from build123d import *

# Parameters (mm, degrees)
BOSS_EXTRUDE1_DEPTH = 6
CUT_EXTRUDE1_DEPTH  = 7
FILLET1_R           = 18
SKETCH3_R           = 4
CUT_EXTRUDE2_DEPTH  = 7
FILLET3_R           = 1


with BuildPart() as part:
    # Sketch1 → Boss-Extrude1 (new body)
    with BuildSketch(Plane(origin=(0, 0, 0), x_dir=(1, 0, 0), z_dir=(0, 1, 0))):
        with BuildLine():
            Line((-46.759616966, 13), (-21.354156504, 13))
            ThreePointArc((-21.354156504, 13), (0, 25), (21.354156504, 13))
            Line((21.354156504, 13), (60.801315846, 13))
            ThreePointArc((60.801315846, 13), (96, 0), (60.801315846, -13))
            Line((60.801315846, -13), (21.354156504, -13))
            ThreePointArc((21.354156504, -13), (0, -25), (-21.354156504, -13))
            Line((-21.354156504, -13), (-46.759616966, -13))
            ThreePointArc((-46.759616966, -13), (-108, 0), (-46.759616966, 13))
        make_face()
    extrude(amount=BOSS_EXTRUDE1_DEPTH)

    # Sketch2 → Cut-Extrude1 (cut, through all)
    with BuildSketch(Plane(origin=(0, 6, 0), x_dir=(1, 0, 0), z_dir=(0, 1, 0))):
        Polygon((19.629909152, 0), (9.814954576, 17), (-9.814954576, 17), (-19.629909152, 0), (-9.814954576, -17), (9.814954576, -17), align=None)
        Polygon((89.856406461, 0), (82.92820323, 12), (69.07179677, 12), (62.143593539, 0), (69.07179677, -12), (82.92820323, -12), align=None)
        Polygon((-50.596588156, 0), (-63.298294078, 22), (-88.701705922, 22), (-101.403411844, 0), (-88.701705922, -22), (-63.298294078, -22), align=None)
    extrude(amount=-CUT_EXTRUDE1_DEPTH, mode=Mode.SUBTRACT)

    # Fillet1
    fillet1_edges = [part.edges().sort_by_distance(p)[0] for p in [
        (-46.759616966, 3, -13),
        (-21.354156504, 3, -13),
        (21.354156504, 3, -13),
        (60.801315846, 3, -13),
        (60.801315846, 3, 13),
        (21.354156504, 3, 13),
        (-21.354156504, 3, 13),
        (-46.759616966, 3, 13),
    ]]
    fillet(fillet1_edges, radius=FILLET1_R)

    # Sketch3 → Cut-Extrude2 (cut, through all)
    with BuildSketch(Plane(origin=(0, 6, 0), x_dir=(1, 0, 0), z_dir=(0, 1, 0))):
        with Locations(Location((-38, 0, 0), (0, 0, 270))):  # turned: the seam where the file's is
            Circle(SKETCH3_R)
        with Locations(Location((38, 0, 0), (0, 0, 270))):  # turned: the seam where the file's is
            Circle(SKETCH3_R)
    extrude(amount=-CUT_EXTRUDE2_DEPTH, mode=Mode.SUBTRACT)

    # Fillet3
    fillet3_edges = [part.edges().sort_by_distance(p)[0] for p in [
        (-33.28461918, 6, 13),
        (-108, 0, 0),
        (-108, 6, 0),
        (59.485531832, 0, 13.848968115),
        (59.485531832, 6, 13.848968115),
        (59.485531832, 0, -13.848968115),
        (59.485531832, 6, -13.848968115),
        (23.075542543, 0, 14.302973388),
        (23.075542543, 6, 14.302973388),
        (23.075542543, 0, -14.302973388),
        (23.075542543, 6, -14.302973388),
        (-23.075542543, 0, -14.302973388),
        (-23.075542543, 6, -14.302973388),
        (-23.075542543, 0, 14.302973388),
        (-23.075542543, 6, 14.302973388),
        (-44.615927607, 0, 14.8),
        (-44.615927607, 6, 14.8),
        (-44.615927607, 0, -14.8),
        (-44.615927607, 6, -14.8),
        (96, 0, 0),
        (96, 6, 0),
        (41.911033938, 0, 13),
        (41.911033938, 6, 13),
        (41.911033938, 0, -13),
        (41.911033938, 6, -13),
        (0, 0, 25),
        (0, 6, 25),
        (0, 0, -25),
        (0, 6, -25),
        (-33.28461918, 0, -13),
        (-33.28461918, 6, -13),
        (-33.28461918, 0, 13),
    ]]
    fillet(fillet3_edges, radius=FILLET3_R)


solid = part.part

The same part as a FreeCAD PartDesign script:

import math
import FreeCAD as App
import Part
import Sketcher
Q = App.Units.Quantity


def edges_at(feature, points):
    """Names of the edges that pass closest to the given points."""
    edges = feature.Shape.Edges
    near = lambda p: min(range(len(edges)), key=lambda i: edges[i].distToShape(Part.Vertex(*p))[0])
    return sorted({f"Edge{near(p) + 1}" for p in points})


def add_polygon(sketch, points):
    """Adds a closed chain of lines whose ends are joined by coincident constraints."""
    first, n = sketch.GeometryCount, len(points)
    for a, b in zip(points, points[1:] + points[:1]):
        sketch.addGeometry(Part.LineSegment(App.Vector(*a, 0), App.Vector(*b, 0)), False)
    for i in range(n):
        sketch.addConstraint(Sketcher.Constraint("Coincident", first + i, 2, first + (i + 1) % n, 1))

doc = App.newDocument("Part")
params = doc.addObject("Spreadsheet::Sheet", "Params")
for row, (alias, value) in enumerate([
    ("sketch1_radius", "32 mm"),
    ("sketch1_radius2", "25 mm"),
    ("sketch1_radius3", "20 mm"),
    ("pad1_length", "6 mm"),
    ("fillet_radius", "18 mm"),
    ("sketch3_diameter", "8 mm"),
    ("fillet2_radius", "1 mm"),
], start=1):
    params.set(f"A{row}", alias)
    params.set(f"B{row}", "=" + value)
    params.setAlias(f"B{row}", alias)

body = doc.addObject("PartDesign::Body", "Body")

# Sketch on XZ plane
sketch1 = body.newObject("Sketcher::SketchObject", "Sketch")
sketch1.AttachmentSupport = (doc.getObject("XZ_Plane"), [""])
sketch1.MapMode = "FlatFace"
sketch1.addGeometry([
    Part.LineSegment(App.Vector(-21, -13, 0), App.Vector(-47, -13, 0)),  # 0
    Part.ArcOfCircle(Part.Circle(App.Vector(-76, 0, 0), App.Vector(0, 0, 1), 32), math.radians(24), math.radians(336)),  # 1
    Part.LineSegment(App.Vector(-47, 13, 0), App.Vector(-21, 13, 0)),  # 2
    Part.ArcOfCircle(Part.Circle(App.Vector(0, 0, 0), App.Vector(0, 0, 1), 25), math.radians(31), math.radians(149)),  # 3
    Part.LineSegment(App.Vector(21, 13, 0), App.Vector(61, 13, 0)),  # 4
    Part.ArcOfCircle(Part.Circle(App.Vector(76, 0, 0), App.Vector(0, 0, 1), 20), math.radians(-139), math.radians(139)),  # 5
    Part.LineSegment(App.Vector(61, -13, 0), App.Vector(21, -13, 0)),  # 6
    Part.ArcOfCircle(Part.Circle(App.Vector(0, 0, 0), App.Vector(0, 0, 1), 25), math.radians(-149), math.radians(-31)),  # 7
], False)
sketch1.addConstraint([
    Sketcher.Constraint("Coincident", 0, 2, 1, 2),
    Sketcher.Constraint("Coincident", 1, 1, 2, 1),
    Sketcher.Constraint("Coincident", 2, 2, 3, 2),
    Sketcher.Constraint("Coincident", 3, 1, 4, 1),
    Sketcher.Constraint("Coincident", 4, 2, 5, 2),
    Sketcher.Constraint("Coincident", 5, 1, 6, 1),
    Sketcher.Constraint("Coincident", 6, 2, 7, 2),
    Sketcher.Constraint("Coincident", 7, 1, 0, 1),
    Sketcher.Constraint("Horizontal", 0),
    Sketcher.Constraint("Horizontal", 2),
    Sketcher.Constraint("Horizontal", 4),
    Sketcher.Constraint("Horizontal", 6),
    Sketcher.Constraint("Coincident", 3, 3, -1, 1),
    Sketcher.Constraint("Coincident", 7, 3, -1, 1),
    Sketcher.Constraint("Equal", 3, 7),
    Sketcher.Constraint("Symmetric", 1, 3, 5, 3, -1, 1),
    Sketcher.Constraint("Symmetric", 0, 2, 1, 1, -1),
    Sketcher.Constraint("Horizontal", 2, 2, 3, 1),
    Sketcher.Constraint("Horizontal", 0, 2, 5, 1),
    Sketcher.Constraint("Radius", 1, Q("32 mm")),
    Sketcher.Constraint("Radius", 3, Q("25 mm")),
    Sketcher.Constraint("Radius", 5, Q("20 mm")),
    Sketcher.Constraint("DistanceX", 1, 3, -1, 1, Q("76 mm")),
    Sketcher.Constraint("DistanceY", 0, 2, -1, 1, Q("13 mm")),
])
sketch1.setExpression("Constraints[19]", "Params.sketch1_radius")
sketch1.setExpression("Constraints[20]", "Params.sketch1_radius2")
sketch1.setExpression("Constraints[21]", "Params.sketch1_radius3")
pad1 = body.newObject("PartDesign::Pad", "Pad")
pad1.Profile = sketch1
pad1.setExpression("Length", "Params.pad1_length")
pad1.Reversed = True

# Sketch on XZ plane
sketch2 = body.newObject("Sketcher::SketchObject", "Sketch001")
sketch2.AttachmentSupport = (doc.getObject("XZ_Plane"), [""])
sketch2.MapMode = "FlatFace"
sketch2.AttachmentOffset = App.Placement(App.Vector(0, 0, -6), App.Rotation())
add_polygon(sketch2, [(20, 0), (10, -17), (-10, -17), (-20, 0), (-10, 17), (10, 17)])  # lines 0-5
add_polygon(sketch2, [(90, 0), (83, -12), (69, -12), (62, 0), (69, 12), (83, 12)])  # lines 6-11
add_polygon(sketch2, [(-51, 0), (-63, -22), (-89, -22), (-101, 0), (-89, 22), (-63, 22)])  # lines 12-17
sketch2.addConstraint([
    Sketcher.Constraint("Horizontal", 1),
    Sketcher.Constraint("Horizontal", 4),
    Sketcher.Constraint("Horizontal", 7),
    Sketcher.Constraint("Horizontal", 10),
    Sketcher.Constraint("Horizontal", 13),
    Sketcher.Constraint("Horizontal", 16),
    Sketcher.Constraint("Symmetric", 0, 2, 3, 2, -1, 1),
    Sketcher.Constraint("Symmetric", 2, 2, 5, 2, -1, 1),
    Sketcher.Constraint("Symmetric", 7, 2, 9, 2, -1),
    Sketcher.Constraint("Symmetric", 13, 2, 15, 2, -1),
    Sketcher.Constraint("PointOnObject", 2, 2, -1),
    Sketcher.Constraint("PointOnObject", 8, 2, -1),
    Sketcher.Constraint("PointOnObject", 11, 2, -1),
    Sketcher.Constraint("PointOnObject", 14, 2, -1),
    Sketcher.Constraint("PointOnObject", 17, 2, -1),
    Sketcher.Constraint("Parallel", 2, 5),
    Sketcher.Constraint("Parallel", 3, 6),
    Sketcher.Constraint("Parallel", 5, 8),
    Sketcher.Constraint("Parallel", 6, 9),
    Sketcher.Constraint("Parallel", 8, 11),
    Sketcher.Constraint("Parallel", 9, 12),
    Sketcher.Constraint("Parallel", 11, 14),
    Sketcher.Constraint("Parallel", 14, 17),
    Sketcher.Constraint("Angle", 0, Q("-120 deg")),
    Sketcher.Constraint("DistanceY", 0, 2, -1, 1, Q("17 mm")),
    Sketcher.Constraint("DistanceY", 6, 2, -1, 1, Q("12 mm")),
    Sketcher.Constraint("DistanceY", 12, 2, -1, 1, Q("22 mm")),
    Sketcher.Constraint("DistanceX", 1, 2, 1, 1, Q("19.629909 mm")),
    Sketcher.Constraint("DistanceX", 13, 2, 13, 1, Q("25.403412 mm")),
    Sketcher.Constraint("DistanceX", 7, 2, 7, 1, Q("13.856406 mm")),
    Sketcher.Constraint("DistanceX", 14, 2, -1, 1, Q("101.403412 mm")),
    Sketcher.Constraint("DistanceX", 0, 2, 6, 2, Q("73.113249 mm")),
])
pocket1 = body.newObject("PartDesign::Pocket", "Pocket")
pocket1.Profile = sketch2
pocket1.Type = "ThroughAll"
pocket1.Reversed = True
doc.recompute()

fillet = body.newObject("PartDesign::Fillet", "Fillet")
fillet.Base = (pocket1, edges_at(pocket1, [
    (-46.76, 3, -13),
    (-21.354, 3, -13),
    (21.354, 3, -13),
    (60.801, 3, -13),
    (60.801, 3, 13),
    (21.354, 3, 13),
    (-21.354, 3, 13),
    (-46.76, 3, 13),
]))
fillet.setExpression("Radius", "Params.fillet_radius")

# Sketch on XZ plane
sketch3 = body.newObject("Sketcher::SketchObject", "Sketch002")
sketch3.AttachmentSupport = (doc.getObject("XZ_Plane"), [""])
sketch3.MapMode = "FlatFace"
sketch3.AttachmentOffset = App.Placement(App.Vector(0, 0, -6), App.Rotation())
sketch3.addGeometry([
    Part.Circle(App.Vector(-38, 0, 0), App.Vector(0, 0, 1), 4),
    Part.Circle(App.Vector(38, 0, 0), App.Vector(0, 0, 1), 4),
], False)
sketch3.addConstraint([
    Sketcher.Constraint("Equal", 0, 1),
    Sketcher.Constraint("Symmetric", 0, 3, 1, 3, -1, 1),
    Sketcher.Constraint("PointOnObject", 0, 3, -1),
    Sketcher.Constraint("Diameter", 0, Q("8 mm")),
    Sketcher.Constraint("DistanceX", 0, 3, -1, 1, Q("38 mm")),
])
sketch3.setExpression("Constraints[3]", "Params.sketch3_diameter")
pocket2 = body.newObject("PartDesign::Pocket", "Pocket001")
pocket2.Profile = sketch3
pocket2.Type = "ThroughAll"
pocket2.Reversed = True
doc.recompute()

fillet2 = body.newObject("PartDesign::Fillet", "Fillet001")
fillet2.Base = (pocket2, edges_at(pocket2, [
    (-33.285, 6, 13),
    (-108, 0, 0),
    (-108, 6, 0),
    (59.486, 0, 13.849),
    (59.486, 6, 13.849),
    (59.486, 0, -13.849),
    (59.486, 6, -13.849),
    (23.076, 0, 14.303),
    (23.076, 6, 14.303),
    (23.076, 0, -14.303),
    (23.076, 6, -14.303),
    (-23.076, 0, -14.303),
    (-23.076, 6, -14.303),
    (-23.076, 0, 14.303),
    (-23.076, 6, 14.303),
    (-44.616, 0, 14.8),
    (-44.616, 6, 14.8),
    (-44.616, 0, -14.8),
    (-44.616, 6, -14.8),
    (96, 0, 0),
    (96, 6, 0),
    (41.911, 0, 13),
    (41.911, 6, 13),
    (41.911, 0, -13),
    (41.911, 6, -13),
    (0, 0, 25),
    (0, 6, 25),
    (0, 0, -25),
    (0, 6, -25),
    (-33.285, 0, -13),
    (-33.285, 6, -13),
    (-33.285, 0, 13),
]))
fillet2.setExpression("Radius", "Params.fillet2_radius")

doc.recompute()
